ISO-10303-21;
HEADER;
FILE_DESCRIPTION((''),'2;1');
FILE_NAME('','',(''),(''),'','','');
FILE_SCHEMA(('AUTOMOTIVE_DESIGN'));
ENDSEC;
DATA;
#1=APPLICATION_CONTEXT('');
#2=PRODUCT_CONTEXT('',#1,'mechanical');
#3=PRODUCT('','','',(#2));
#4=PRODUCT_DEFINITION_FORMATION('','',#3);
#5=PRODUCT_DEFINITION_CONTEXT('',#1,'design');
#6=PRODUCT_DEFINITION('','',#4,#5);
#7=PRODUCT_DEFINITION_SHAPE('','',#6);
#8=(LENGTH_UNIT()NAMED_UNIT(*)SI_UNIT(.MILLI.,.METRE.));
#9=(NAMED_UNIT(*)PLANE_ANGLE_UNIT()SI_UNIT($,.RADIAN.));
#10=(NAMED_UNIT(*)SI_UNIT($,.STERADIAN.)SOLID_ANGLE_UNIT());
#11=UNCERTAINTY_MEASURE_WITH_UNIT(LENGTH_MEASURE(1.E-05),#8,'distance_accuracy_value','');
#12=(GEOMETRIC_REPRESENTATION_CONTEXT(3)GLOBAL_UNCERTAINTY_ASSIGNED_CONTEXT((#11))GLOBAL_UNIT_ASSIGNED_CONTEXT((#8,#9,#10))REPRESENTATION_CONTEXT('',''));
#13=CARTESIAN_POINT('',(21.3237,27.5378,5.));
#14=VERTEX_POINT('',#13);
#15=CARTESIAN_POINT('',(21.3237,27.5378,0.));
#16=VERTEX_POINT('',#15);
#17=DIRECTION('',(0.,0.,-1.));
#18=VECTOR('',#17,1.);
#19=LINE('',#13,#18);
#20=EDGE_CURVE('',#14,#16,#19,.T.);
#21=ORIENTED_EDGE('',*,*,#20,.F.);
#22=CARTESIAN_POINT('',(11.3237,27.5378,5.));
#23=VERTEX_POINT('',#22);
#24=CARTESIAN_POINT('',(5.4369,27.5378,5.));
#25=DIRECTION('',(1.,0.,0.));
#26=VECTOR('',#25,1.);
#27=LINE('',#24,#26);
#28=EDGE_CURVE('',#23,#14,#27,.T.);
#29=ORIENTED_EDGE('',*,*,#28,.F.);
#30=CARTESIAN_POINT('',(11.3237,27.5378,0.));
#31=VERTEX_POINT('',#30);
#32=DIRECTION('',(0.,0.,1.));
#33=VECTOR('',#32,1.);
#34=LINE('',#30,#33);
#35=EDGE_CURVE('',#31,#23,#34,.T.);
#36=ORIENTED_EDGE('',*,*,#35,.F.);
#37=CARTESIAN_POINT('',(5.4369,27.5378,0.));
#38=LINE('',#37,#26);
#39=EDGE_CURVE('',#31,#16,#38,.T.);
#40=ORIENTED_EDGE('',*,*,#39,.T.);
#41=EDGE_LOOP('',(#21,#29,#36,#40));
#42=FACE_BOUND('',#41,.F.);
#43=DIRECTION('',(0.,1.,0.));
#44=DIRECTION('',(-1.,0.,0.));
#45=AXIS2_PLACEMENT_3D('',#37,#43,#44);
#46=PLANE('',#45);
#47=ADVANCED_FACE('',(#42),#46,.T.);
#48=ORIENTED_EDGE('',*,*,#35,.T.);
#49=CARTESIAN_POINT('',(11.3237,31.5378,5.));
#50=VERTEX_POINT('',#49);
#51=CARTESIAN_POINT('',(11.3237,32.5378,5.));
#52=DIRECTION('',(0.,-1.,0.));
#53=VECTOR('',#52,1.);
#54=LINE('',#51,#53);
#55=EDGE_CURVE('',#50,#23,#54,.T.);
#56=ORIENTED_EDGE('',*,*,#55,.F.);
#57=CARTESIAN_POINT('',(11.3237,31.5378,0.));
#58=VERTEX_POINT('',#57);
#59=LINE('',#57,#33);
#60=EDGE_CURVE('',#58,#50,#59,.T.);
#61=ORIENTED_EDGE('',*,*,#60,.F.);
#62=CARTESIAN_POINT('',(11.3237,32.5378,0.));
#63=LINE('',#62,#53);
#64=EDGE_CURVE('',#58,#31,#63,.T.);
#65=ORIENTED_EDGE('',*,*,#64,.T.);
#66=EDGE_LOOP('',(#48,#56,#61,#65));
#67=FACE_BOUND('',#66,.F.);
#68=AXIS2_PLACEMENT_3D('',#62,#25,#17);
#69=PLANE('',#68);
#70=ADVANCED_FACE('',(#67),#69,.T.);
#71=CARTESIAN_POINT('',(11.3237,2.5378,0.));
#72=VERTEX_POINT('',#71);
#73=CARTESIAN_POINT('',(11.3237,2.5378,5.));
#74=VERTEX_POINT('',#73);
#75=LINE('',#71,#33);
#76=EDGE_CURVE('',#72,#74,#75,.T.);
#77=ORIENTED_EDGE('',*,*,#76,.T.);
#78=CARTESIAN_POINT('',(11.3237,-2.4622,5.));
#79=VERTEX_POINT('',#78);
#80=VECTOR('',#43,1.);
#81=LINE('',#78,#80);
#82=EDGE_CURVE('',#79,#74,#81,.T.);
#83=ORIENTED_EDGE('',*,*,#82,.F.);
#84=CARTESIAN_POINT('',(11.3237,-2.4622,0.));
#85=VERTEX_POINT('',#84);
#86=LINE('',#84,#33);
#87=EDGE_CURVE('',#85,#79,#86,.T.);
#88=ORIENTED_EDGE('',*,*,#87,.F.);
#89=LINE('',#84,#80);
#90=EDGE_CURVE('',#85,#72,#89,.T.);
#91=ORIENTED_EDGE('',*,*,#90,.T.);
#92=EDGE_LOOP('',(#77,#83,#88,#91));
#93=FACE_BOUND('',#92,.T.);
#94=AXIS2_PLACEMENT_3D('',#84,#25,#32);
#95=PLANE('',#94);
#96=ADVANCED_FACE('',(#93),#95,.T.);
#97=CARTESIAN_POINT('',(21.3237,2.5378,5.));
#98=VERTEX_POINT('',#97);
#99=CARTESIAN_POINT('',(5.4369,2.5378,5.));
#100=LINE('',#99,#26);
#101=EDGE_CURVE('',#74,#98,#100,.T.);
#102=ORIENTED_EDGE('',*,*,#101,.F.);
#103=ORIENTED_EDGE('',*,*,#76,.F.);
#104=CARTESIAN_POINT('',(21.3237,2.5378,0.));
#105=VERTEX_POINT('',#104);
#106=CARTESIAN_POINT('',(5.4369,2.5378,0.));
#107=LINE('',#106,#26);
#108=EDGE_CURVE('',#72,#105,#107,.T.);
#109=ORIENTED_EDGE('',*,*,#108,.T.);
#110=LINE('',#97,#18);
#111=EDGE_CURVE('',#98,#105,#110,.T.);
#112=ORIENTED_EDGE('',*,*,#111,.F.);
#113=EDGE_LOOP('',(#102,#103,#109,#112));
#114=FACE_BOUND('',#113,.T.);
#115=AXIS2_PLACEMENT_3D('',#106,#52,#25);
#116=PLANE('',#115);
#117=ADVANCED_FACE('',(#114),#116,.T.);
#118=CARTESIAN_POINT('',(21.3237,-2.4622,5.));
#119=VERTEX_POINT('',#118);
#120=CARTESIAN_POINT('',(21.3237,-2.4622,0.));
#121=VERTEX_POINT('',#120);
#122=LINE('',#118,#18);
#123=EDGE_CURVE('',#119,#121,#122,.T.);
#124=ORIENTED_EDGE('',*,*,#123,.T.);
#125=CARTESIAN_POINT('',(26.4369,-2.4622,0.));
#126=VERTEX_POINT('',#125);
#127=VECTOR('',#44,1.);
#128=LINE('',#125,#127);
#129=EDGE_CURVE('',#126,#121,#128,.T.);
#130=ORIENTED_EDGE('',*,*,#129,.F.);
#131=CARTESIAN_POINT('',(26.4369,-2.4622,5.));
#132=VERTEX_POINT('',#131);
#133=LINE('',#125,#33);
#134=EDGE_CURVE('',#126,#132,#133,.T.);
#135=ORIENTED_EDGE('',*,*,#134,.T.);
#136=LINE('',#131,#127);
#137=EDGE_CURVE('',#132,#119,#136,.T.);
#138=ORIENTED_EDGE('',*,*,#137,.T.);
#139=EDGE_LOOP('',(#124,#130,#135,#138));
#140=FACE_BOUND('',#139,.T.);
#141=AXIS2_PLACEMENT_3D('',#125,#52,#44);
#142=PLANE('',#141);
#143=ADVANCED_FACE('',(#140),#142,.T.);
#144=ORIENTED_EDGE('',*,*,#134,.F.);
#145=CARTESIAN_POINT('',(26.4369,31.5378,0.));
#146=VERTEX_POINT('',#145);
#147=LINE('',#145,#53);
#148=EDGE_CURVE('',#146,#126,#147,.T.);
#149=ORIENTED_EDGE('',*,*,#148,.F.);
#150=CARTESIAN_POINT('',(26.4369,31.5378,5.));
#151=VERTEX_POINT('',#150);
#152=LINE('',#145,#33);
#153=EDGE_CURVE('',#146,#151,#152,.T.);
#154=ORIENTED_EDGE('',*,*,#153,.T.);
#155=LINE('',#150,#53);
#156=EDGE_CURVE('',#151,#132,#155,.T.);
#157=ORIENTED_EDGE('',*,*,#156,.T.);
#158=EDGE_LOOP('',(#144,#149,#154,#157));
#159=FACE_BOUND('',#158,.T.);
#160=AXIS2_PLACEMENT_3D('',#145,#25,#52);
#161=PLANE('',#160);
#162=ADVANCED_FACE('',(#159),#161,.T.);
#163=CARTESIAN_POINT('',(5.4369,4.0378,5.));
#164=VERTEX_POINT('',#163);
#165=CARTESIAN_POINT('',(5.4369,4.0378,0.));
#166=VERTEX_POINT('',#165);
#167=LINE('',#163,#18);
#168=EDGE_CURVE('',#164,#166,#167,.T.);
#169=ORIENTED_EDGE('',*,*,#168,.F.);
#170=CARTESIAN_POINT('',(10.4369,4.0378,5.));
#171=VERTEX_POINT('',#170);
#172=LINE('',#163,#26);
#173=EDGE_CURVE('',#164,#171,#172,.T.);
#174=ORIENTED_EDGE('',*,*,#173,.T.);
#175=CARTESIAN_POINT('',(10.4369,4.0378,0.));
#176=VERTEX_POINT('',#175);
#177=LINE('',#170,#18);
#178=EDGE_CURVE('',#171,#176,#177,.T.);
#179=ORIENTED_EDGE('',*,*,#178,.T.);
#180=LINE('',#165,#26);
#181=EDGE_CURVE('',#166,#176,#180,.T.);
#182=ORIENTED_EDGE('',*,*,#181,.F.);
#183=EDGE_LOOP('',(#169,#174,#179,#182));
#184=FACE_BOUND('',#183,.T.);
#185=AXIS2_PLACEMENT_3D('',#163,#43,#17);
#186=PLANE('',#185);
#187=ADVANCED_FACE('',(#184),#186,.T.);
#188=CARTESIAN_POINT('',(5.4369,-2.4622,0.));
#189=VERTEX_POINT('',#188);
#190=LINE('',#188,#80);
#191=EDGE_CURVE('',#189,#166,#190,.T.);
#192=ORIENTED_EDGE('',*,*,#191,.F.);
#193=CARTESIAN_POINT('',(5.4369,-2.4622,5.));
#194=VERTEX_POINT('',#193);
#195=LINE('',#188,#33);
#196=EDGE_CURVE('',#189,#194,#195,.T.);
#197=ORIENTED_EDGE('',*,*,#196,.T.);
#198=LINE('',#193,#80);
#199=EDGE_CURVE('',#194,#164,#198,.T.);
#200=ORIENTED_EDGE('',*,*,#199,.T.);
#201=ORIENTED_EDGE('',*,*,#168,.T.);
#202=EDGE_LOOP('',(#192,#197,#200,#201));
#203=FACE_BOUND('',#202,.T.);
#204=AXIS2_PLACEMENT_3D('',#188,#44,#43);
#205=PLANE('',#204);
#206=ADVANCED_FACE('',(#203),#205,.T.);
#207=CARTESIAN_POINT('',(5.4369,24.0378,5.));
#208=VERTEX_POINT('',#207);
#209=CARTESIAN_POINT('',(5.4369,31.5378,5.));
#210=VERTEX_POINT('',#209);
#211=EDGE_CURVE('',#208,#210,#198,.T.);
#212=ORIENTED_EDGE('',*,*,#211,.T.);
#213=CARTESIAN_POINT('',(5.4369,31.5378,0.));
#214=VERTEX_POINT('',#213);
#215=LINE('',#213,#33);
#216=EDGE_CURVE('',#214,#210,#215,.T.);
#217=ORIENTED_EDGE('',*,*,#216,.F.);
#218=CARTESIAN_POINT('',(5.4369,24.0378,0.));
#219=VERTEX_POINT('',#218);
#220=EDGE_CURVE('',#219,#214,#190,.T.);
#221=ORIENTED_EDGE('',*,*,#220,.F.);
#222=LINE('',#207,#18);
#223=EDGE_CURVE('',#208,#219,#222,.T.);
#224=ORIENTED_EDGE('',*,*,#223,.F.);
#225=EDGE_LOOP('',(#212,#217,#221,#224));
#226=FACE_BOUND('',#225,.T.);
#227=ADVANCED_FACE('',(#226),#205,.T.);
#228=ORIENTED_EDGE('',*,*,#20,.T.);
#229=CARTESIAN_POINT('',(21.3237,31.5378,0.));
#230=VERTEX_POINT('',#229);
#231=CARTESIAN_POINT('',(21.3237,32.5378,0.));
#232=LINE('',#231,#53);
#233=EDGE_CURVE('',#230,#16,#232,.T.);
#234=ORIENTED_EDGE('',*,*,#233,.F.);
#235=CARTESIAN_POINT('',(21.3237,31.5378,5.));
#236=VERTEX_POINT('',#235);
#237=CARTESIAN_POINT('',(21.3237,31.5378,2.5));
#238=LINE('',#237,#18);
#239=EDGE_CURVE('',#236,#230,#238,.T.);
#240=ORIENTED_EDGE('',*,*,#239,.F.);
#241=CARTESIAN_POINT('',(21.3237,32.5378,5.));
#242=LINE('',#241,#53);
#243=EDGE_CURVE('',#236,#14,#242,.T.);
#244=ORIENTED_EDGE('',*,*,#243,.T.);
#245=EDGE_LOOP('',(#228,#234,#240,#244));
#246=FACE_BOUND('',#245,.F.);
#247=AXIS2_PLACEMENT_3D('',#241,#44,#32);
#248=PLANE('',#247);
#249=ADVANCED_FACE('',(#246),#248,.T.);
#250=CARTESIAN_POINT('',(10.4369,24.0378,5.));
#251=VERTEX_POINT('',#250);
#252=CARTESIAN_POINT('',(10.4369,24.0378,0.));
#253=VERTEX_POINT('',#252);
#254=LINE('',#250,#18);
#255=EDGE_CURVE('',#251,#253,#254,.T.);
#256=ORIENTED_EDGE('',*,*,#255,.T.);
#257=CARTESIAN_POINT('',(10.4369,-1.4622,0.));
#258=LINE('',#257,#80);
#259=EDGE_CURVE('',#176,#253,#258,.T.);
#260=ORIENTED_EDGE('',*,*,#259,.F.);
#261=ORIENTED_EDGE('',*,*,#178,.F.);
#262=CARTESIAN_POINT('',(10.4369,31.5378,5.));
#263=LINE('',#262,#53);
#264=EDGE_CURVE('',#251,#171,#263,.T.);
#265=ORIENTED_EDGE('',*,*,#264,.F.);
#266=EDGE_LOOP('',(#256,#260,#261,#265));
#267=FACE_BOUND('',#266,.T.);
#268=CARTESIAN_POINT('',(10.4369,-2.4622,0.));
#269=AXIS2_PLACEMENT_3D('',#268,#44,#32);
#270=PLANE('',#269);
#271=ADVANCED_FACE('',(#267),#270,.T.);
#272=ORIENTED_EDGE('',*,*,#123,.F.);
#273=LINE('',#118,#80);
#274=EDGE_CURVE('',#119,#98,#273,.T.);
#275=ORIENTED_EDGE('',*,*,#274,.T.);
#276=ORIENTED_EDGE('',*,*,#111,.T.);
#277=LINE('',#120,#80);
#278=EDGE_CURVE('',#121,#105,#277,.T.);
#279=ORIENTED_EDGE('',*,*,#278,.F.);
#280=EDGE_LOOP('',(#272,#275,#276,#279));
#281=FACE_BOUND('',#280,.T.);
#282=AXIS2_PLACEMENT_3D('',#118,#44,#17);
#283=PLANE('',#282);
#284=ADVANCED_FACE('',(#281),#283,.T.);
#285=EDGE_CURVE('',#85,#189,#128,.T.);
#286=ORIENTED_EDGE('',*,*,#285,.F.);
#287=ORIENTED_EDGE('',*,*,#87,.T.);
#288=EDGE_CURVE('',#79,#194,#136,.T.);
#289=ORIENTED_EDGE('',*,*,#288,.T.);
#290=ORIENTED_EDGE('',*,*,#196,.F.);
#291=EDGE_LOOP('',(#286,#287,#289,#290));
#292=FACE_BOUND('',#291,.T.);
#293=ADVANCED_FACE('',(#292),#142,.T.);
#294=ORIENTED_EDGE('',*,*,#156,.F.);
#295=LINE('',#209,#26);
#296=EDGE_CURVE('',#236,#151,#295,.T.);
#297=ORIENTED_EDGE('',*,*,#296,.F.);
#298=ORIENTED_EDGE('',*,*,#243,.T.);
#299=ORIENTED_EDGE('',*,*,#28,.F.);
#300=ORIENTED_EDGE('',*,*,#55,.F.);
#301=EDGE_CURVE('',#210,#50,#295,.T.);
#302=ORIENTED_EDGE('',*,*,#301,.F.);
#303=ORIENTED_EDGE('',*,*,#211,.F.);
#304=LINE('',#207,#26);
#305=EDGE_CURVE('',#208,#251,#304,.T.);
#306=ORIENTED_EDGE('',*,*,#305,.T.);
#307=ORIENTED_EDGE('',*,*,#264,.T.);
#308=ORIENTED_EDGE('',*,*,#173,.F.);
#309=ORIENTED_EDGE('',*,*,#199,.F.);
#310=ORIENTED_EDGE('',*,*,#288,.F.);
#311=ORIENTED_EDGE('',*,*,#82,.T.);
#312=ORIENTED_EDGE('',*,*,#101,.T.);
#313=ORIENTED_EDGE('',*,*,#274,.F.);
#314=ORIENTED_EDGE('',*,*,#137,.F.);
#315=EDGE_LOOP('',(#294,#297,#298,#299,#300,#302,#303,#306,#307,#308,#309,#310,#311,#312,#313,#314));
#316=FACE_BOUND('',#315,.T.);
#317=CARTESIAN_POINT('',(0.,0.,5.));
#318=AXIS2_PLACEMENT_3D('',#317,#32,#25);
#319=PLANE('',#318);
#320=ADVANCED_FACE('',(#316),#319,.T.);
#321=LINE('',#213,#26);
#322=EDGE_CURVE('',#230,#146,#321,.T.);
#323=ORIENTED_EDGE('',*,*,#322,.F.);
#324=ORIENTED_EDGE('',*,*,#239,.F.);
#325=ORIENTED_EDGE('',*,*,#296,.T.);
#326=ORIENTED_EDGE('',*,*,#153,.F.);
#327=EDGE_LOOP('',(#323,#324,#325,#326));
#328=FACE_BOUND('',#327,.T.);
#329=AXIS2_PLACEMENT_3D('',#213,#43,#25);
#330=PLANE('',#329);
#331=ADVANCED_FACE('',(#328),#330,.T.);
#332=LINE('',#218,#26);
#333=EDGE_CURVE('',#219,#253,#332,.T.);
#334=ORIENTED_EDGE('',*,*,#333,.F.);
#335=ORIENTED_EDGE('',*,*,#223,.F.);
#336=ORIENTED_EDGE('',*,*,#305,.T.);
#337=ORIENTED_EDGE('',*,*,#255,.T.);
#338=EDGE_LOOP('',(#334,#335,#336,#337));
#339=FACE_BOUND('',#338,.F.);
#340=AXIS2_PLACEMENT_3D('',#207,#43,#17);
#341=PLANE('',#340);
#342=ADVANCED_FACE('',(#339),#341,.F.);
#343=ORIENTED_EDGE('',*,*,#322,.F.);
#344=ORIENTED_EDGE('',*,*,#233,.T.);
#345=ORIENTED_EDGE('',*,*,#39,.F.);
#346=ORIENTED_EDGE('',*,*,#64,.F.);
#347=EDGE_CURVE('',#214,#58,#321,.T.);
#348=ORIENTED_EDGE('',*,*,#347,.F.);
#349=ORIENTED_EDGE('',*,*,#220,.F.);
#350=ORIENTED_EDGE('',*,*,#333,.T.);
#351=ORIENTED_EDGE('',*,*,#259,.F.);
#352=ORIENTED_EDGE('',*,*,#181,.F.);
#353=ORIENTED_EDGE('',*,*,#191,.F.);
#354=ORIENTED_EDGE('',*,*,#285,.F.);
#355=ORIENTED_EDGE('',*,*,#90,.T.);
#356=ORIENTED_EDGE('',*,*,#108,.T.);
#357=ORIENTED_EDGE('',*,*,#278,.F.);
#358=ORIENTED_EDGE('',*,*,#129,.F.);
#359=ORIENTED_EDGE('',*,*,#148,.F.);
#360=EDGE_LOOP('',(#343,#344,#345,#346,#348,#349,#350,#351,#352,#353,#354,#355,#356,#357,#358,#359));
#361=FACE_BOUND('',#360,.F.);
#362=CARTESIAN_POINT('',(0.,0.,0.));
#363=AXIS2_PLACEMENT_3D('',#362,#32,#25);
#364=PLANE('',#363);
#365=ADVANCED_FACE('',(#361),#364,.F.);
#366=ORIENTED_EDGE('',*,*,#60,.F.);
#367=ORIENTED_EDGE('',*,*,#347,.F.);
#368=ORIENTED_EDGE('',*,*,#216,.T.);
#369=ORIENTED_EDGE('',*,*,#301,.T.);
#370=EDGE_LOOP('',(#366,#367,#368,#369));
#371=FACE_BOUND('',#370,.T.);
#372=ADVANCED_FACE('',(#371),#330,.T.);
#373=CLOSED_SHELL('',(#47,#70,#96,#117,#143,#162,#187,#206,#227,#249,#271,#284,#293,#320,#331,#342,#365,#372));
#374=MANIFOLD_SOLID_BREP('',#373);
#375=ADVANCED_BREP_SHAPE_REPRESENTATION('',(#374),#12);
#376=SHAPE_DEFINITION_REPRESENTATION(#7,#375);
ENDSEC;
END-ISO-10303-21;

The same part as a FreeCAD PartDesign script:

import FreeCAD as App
import Part
import Sketcher

doc = App.newDocument("Part")
params = doc.addObject("Spreadsheet::Sheet", "Params")
for row, (alias, value) in enumerate([
    ("sketch1_width", "21 mm"),
    ("sketch1_height", "34 mm"),
    ("pad1_length", "5 mm"),
    ("sketch2_width", "10 mm"),
    ("sketch2_height", "5 mm"),
    ("pocket1_length", "5 mm"),
    ("sketch3_width", "20 mm"),
    ("sketch3_height", "5 mm"),
    ("pocket2_length", "5 mm"),
], start=1):
    params.set(f"A{row}", alias)
    params.set(f"B{row}", "=" + value)
    params.setAlias(f"B{row}", alias)

body = doc.addObject("PartDesign::Body", "Body")

sketch1 = body.newObject("Sketcher::SketchObject", "Sketch")
sketch1.AttachmentSupport = (doc.getObject("XY_Plane"), [""])
sketch1.MapMode = "FlatFace"
sketch1.addGeometry(Part.LineSegment(App.Vector(26, 32, 0), App.Vector(5, 32, 0)), False)
sketch1.addGeometry(Part.LineSegment(App.Vector(5, 32, 0), App.Vector(5, -2, 0)), False)
sketch1.addGeometry(Part.LineSegment(App.Vector(5, -2, 0), App.Vector(26, -2, 0)), False)
sketch1.addGeometry(Part.LineSegment(App.Vector(26, -2, 0), App.Vector(26, 32, 0)), False)
sketch1.addConstraint(Sketcher.Constraint("Coincident", 0, 2, 1, 1))
sketch1.addConstraint(Sketcher.Constraint("Coincident", 1, 2, 2, 1))
sketch1.addConstraint(Sketcher.Constraint("Coincident", 2, 2, 3, 1))
sketch1.addConstraint(Sketcher.Constraint("Coincident", 3, 2, 0, 1))
sketch1.addConstraint(Sketcher.Constraint("Horizontal", 0))
sketch1.addConstraint(Sketcher.Constraint("Vertical", 1))
sketch1.addConstraint(Sketcher.Constraint("Horizontal", 2))
sketch1.addConstraint(Sketcher.Constraint("Vertical", 3))
sketch1.addConstraint(Sketcher.Constraint("DistanceX", 0, 2, 0, 1, 21.0))
sketch1.addConstraint(Sketcher.Constraint("DistanceY", 1, 2, 1, 1, 34.0))
sketch1.addConstraint(Sketcher.Constraint("DistanceX", -1, 1, 0, 2, 5.437))
sketch1.addConstraint(Sketcher.Constraint("DistanceY", -1, 1, 0, 2, 31.5378))
sketch1.setExpression("Constraints[8]", "Params.sketch1_width")
sketch1.setExpression("Constraints[9]", "Params.sketch1_height")
pad1 = body.newObject("PartDesign::Pad", "Pad")
pad1.Profile = sketch1
pad1.setExpression("Length", "Params.pad1_length")

sketch2 = body.newObject("Sketcher::SketchObject", "Sketch001")
sketch2.AttachmentSupport = (doc.getObject("XZ_Plane"), [""])
sketch2.MapMode = "FlatFace"
sketch2.AttachmentOffset = App.Placement(App.Vector(0, 0, 2.4622), App.Rotation())
sketch2.addGeometry(Part.LineSegment(App.Vector(21, 5, 0), App.Vector(11, 5, 0)), False)
sketch2.addGeometry(Part.LineSegment(App.Vector(11, 5, 0), App.Vector(11, 0, 0)), False)
sketch2.addGeometry(Part.LineSegment(App.Vector(11, 0, 0), App.Vector(21, 0, 0)), False)
sketch2.addGeometry(Part.LineSegment(App.Vector(21, 0, 0), App.Vector(21, 5, 0)), False)
sketch2.addConstraint(Sketcher.Constraint("Coincident", 0, 2, 1, 1))
sketch2.addConstraint(Sketcher.Constraint("Coincident", 1, 2, 2, 1))
sketch2.addConstraint(Sketcher.Constraint("Coincident", 2, 2, 3, 1))
sketch2.addConstraint(Sketcher.Constraint("Coincident", 3, 2, 0, 1))
sketch2.addConstraint(Sketcher.Constraint("Horizontal", 0))
sketch2.addConstraint(Sketcher.Constraint("Vertical", 1))
sketch2.addConstraint(Sketcher.Constraint("Horizontal", 2))
sketch2.addConstraint(Sketcher.Constraint("Vertical", 3))
sketch2.addConstraint(Sketcher.Constraint("PointOnObject", 1, 2, -1))
sketch2.addConstraint(Sketcher.Constraint("DistanceX", 0, 2, 0, 1, 10.0))
sketch2.addConstraint(Sketcher.Constraint("DistanceY", 1, 2, 1, 1, 5.0))
sketch2.addConstraint(Sketcher.Constraint("DistanceX", -1, 1, 0, 2, 11.3237))
sketch2.setExpression("Constraints[9]", "Params.sketch2_width")
sketch2.setExpression("Constraints[10]", "Params.sketch2_height")
pocket1 = body.newObject("PartDesign::Pocket", "Pocket")
pocket1.Profile = sketch2
pocket1.setExpression("Length", "Params.pocket1_length")
doc.recompute()

datumplane = body.newObject("PartDesign::Plane", "DatumPlane")
datumplane.AttachmentSupport = (doc.getObject("XZ_Plane"), [""])
datumplane.MapMode = "FlatFace"
datumplane.AttachmentOffset = App.Placement(App.Vector(0, 0, -15.0378), App.Rotation())
mirrored = body.newObject("PartDesign::Mirrored", "Mirrored")
mirrored.Originals = [pocket1]
mirrored.MirrorPlane = (datumplane, [""])
body.Tip = mirrored

sketch3 = body.newObject("Sketcher::SketchObject", "Sketch002")
sketch3.AttachmentSupport = (doc.getObject("YZ_Plane"), [""])
sketch3.MapMode = "FlatFace"
sketch3.AttachmentOffset = App.Placement(App.Vector(0, 0, 5.4369), App.Rotation())
sketch3.addGeometry(Part.LineSegment(App.Vector(24, 5, 0), App.Vector(24, 0, 0)), False)
sketch3.addGeometry(Part.LineSegment(App.Vector(24, 0, 0), App.Vector(4, 0, 0)), False)
sketch3.addGeometry(Part.LineSegment(App.Vector(4, 0, 0), App.Vector(4, 5, 0)), False)
sketch3.addGeometry(Part.LineSegment(App.Vector(4, 5, 0), App.Vector(24, 5, 0)), False)
sketch3.addConstraint(Sketcher.Constraint("Coincident", 0, 2, 1, 1))
sketch3.addConstraint(Sketcher.Constraint("Coincident", 1, 2, 2, 1))
sketch3.addConstraint(Sketcher.Constraint("Coincident", 2, 2, 3, 1))
sketch3.addConstraint(Sketcher.Constraint("Coincident", 3, 2, 0, 1))
sketch3.addConstraint(Sketcher.Constraint("Vertical", 0))
sketch3.addConstraint(Sketcher.Constraint("Horizontal", 1))
sketch3.addConstraint(Sketcher.Constraint("Vertical", 2))
sketch3.addConstraint(Sketcher.Constraint("Horizontal", 3))
sketch3.addConstraint(Sketcher.Constraint("PointOnObject", 0, 2, -1))
sketch3.addConstraint(Sketcher.Constraint("DistanceX", 1, 2, 1, 1, 20.0))
sketch3.addConstraint(Sketcher.Constraint("DistanceY", 0, 2, 0, 1, 5.0))
sketch3.addConstraint(Sketcher.Constraint("DistanceX", -1, 1, 0, 2, 24.0378))
sketch3.setExpression("Constraints[9]", "Params.sketch3_width")
sketch3.setExpression("Constraints[10]", "Params.sketch3_height")
pocket2 = body.newObject("PartDesign::Pocket", "Pocket001")
pocket2.Profile = sketch3
pocket2.setExpression("Length", "Params.pocket2_length")
pocket2.Reversed = True

doc.recompute()
